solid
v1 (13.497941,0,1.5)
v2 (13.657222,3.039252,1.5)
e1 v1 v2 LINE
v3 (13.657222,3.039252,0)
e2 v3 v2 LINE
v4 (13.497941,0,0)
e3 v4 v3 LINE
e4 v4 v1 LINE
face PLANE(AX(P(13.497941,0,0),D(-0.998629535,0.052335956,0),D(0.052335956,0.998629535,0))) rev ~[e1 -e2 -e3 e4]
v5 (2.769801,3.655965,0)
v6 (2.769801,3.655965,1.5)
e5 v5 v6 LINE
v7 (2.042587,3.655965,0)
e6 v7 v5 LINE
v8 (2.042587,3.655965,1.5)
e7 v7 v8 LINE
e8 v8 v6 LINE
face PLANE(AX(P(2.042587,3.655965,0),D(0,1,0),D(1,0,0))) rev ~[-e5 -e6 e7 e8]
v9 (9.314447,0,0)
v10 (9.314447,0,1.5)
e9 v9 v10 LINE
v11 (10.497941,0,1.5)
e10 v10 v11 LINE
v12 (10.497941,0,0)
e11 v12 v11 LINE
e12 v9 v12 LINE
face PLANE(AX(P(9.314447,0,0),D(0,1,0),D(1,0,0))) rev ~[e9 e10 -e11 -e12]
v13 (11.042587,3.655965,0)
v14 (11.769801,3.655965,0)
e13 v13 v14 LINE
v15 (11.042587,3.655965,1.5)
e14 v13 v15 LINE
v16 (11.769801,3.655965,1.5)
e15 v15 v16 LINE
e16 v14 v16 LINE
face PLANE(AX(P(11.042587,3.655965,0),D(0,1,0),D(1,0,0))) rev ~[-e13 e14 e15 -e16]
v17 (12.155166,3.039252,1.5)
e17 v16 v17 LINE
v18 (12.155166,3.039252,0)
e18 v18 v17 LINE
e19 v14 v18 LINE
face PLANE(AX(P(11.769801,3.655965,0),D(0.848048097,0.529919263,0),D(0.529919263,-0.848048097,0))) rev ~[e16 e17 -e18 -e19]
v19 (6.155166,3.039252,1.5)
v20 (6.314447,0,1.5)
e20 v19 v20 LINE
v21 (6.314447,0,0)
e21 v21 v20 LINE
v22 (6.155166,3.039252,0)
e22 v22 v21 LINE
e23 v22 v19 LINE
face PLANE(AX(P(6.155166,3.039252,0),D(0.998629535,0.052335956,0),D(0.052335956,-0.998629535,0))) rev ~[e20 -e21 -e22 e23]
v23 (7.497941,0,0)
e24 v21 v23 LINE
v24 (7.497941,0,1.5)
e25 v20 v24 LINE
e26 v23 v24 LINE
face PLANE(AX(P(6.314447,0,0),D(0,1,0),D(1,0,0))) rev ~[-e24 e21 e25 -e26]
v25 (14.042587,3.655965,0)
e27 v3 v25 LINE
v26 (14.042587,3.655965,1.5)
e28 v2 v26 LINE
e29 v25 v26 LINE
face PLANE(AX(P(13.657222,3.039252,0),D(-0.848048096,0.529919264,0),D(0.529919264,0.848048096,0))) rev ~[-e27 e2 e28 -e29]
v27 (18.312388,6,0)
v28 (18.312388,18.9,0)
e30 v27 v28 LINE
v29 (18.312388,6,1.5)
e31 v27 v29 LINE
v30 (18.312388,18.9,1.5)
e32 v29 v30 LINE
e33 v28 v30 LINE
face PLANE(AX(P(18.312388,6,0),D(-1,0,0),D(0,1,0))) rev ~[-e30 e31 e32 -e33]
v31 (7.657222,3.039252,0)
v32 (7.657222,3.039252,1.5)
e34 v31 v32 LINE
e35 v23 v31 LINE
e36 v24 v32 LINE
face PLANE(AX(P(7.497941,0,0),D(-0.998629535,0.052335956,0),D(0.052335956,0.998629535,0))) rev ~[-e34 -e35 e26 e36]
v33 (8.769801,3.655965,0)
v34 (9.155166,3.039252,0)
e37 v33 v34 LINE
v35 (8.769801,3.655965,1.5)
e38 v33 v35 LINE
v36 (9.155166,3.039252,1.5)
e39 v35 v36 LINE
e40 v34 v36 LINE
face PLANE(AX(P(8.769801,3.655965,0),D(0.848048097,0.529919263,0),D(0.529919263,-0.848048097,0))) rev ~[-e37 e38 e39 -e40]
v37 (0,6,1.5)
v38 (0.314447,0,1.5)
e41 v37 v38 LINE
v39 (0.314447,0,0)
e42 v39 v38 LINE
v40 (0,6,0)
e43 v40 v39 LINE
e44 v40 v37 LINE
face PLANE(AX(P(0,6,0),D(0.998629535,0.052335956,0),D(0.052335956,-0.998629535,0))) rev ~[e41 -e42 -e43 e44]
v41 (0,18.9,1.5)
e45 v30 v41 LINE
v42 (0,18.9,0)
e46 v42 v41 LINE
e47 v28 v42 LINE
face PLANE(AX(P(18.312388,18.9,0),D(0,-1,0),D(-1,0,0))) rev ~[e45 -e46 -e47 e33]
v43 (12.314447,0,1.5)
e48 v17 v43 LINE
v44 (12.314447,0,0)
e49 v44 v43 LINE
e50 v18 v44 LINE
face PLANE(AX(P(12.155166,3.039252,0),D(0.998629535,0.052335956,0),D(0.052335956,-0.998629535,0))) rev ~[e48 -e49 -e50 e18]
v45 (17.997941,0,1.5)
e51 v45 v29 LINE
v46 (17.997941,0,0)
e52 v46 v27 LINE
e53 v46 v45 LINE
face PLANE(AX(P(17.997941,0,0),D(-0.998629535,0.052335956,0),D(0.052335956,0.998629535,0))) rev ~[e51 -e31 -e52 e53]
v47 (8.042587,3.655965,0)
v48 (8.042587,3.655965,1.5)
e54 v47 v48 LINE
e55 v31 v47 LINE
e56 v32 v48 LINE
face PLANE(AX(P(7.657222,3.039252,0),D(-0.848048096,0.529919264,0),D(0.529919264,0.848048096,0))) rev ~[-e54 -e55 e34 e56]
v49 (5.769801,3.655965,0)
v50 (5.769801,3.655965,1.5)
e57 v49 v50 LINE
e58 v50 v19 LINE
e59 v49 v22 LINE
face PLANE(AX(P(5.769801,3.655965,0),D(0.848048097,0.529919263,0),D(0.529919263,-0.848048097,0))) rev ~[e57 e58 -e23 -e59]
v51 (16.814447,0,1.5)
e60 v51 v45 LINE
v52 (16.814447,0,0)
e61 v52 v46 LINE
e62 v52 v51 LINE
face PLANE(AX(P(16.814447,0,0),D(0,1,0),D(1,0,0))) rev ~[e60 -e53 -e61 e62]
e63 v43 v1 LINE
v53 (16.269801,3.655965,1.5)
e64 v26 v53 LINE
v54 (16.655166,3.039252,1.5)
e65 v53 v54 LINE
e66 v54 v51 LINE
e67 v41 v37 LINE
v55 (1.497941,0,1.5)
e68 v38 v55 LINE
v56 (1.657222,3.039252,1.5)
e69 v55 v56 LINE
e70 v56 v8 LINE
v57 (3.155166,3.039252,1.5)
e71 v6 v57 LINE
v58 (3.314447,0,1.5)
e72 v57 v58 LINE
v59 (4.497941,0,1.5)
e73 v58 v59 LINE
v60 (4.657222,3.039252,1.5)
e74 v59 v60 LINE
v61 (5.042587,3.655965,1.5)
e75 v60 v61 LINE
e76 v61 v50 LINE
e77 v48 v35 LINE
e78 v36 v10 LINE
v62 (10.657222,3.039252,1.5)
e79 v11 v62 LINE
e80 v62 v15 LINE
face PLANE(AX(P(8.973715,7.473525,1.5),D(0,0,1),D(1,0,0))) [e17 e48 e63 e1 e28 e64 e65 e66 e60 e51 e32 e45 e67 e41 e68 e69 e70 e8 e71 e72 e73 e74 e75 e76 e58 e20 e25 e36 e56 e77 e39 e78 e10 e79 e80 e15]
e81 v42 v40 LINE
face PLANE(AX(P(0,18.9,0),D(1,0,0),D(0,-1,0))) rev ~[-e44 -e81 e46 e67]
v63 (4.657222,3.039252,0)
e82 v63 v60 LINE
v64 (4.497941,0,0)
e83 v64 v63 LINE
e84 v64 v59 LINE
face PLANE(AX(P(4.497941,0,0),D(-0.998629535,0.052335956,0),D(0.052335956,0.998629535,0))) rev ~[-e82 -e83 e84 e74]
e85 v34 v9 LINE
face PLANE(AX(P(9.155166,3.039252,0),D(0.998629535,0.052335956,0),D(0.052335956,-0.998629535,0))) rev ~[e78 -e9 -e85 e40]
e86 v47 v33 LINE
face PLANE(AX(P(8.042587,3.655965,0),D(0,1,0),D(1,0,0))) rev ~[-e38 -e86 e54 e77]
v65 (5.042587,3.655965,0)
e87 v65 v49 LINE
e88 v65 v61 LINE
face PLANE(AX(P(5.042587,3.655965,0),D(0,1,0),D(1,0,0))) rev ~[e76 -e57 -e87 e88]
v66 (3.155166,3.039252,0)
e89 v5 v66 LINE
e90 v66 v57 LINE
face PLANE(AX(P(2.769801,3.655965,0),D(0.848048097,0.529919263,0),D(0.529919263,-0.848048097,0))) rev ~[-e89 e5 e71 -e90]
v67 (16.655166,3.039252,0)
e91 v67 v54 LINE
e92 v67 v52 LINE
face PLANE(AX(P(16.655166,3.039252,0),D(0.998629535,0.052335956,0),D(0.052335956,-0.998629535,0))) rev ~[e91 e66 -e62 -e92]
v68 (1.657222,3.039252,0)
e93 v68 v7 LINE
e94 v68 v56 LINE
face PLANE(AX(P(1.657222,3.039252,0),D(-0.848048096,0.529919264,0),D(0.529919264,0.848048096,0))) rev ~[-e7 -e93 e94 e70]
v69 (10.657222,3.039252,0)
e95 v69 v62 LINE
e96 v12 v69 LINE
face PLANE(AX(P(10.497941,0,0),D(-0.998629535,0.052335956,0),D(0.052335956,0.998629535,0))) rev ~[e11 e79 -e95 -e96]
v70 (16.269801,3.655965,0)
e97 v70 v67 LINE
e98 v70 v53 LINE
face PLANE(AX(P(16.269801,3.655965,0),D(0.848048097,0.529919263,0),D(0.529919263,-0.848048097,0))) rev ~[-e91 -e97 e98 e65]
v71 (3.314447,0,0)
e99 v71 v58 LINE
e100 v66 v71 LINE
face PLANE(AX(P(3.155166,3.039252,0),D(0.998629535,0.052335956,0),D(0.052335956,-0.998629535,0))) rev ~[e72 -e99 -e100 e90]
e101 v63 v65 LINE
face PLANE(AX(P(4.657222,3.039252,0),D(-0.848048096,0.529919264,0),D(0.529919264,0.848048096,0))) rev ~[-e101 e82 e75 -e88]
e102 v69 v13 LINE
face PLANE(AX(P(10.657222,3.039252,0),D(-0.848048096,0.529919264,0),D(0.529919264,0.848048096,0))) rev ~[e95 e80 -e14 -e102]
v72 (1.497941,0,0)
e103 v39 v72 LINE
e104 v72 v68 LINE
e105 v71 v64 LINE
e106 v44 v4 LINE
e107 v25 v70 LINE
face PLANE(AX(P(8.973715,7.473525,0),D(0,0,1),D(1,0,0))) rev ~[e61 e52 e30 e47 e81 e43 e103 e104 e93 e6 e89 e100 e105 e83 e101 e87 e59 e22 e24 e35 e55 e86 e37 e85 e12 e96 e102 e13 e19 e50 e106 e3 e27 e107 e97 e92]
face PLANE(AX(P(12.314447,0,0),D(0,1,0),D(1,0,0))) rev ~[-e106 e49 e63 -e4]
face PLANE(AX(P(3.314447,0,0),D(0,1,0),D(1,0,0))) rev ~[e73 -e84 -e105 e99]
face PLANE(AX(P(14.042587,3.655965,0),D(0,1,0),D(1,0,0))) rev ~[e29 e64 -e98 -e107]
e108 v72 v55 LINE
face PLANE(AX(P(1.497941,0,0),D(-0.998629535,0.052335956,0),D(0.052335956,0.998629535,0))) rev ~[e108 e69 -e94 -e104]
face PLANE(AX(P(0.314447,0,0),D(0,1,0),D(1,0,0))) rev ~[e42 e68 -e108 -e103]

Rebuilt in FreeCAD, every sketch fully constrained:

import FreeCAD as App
import Part
import Sketcher
Q = App.Units.Quantity

doc = App.newDocument("Part")
body = doc.addObject("PartDesign::Body", "Body")

# Sketch on XY plane
sketch1 = doc.addObject("Sketcher::SketchObject", "Sketch")
body.addObject(sketch1)
sketch1.AttachmentSupport = (doc.XY_Plane, [""])
sketch1.MapMode = "FlatFace"
sketch1.addGeometry(Part.LineSegment(App.Vector(0, 6, 0), App.Vector(0.314447, 0, 0)), False)
sketch1.addGeometry(Part.LineSegment(App.Vector(0.314447, 0, 0), App.Vector(1.497941, 0, 0)), False)
sketch1.addGeometry(Part.LineSegment(App.Vector(1.497941, 0, 0), App.Vector(1.657222, 3.039252, 0)), False)
sketch1.addGeometry(Part.LineSegment(App.Vector(1.657222, 3.039252, 0), App.Vector(2.042587, 3.655965, 0)), False)
sketch1.addGeometry(Part.LineSegment(App.Vector(2.042587, 3.655965, 0), App.Vector(2.769801, 3.655965, 0)), False)
sketch1.addGeometry(Part.LineSegment(App.Vector(2.769801, 3.655965, 0), App.Vector(3.155166, 3.039252, 0)), False)
sketch1.addGeometry(Part.LineSegment(App.Vector(3.155166, 3.039252, 0), App.Vector(3.314447, 0, 0)), False)
sketch1.addGeometry(Part.LineSegment(App.Vector(3.314447, 0, 0), App.Vector(4.497941, 0, 0)), False)
sketch1.addGeometry(Part.LineSegment(App.Vector(4.497941, 0, 0), App.Vector(4.657222, 3.039252, 0)), False)
sketch1.addGeometry(Part.LineSegment(App.Vector(4.657222, 3.039252, 0), App.Vector(5.042587, 3.655965, 0)), False)
sketch1.addGeometry(Part.LineSegment(App.Vector(5.042587, 3.655965, 0), App.Vector(5.769801, 3.655965, 0)), False)
sketch1.addGeometry(Part.LineSegment(App.Vector(5.769801, 3.655965, 0), App.Vector(6.155166, 3.039252, 0)), False)
sketch1.addGeometry(Part.LineSegment(App.Vector(6.155166, 3.039252, 0), App.Vector(6.314447, 0, 0)), False)
sketch1.addGeometry(Part.LineSegment(App.Vector(6.314447, 0, 0), App.Vector(7.497941, 0, 0)), False)
sketch1.addGeometry(Part.LineSegment(App.Vector(7.497941, 0, 0), App.Vector(7.657222, 3.039252, 0)), False)
sketch1.addGeometry(Part.LineSegment(App.Vector(7.657222, 3.039252, 0), App.Vector(8.042587, 3.655965, 0)), False)
sketch1.addGeometry(Part.LineSegment(App.Vector(8.042587, 3.655965, 0), App.Vector(8.769801, 3.655965, 0)), False)
sketch1.addGeometry(Part.LineSegment(App.Vector(8.769801, 3.655965, 0), App.Vector(9.155166, 3.039252, 0)), False)
sketch1.addGeometry(Part.LineSegment(App.Vector(9.155166, 3.039252, 0), App.Vector(9.314447, 0, 0)), False)
sketch1.addGeometry(Part.LineSegment(App.Vector(9.314447, 0, 0), App.Vector(10.497941, 0, 0)), False)
sketch1.addGeometry(Part.LineSegment(App.Vector(10.497941, 0, 0), App.Vector(10.657222, 3.039252, 0)), False)
sketch1.addGeometry(Part.LineSegment(App.Vector(10.657222, 3.039252, 0), App.Vector(11.042587, 3.655965, 0)), False)
sketch1.addGeometry(Part.LineSegment(App.Vector(11.042587, 3.655965, 0), App.Vector(11.769801, 3.655965, 0)), False)
sketch1.addGeometry(Part.LineSegment(App.Vector(11.769801, 3.655965, 0), App.Vector(12.155166, 3.039252, 0)), False)
sketch1.addGeometry(Part.LineSegment(App.Vector(12.155166, 3.039252, 0), App.Vector(12.314447, 0, 0)), False)
sketch1.addGeometry(Part.LineSegment(App.Vector(12.314447, 0, 0), App.Vector(13.497941, 0, 0)), False)
sketch1.addGeometry(Part.LineSegment(App.Vector(13.497941, 0, 0), App.Vector(13.657222, 3.039252, 0)), False)
sketch1.addGeometry(Part.LineSegment(App.Vector(13.657222, 3.039252, 0), App.Vector(14.042587, 3.655965, 0)), False)
sketch1.addGeometry(Part.LineSegment(App.Vector(14.042587, 3.655965, 0), App.Vector(16.269801, 3.655965, 0)), False)
sketch1.addGeometry(Part.LineSegment(App.Vector(16.269801, 3.655965, 0), App.Vector(16.655166, 3.039252, 0)), False)
sketch1.addGeometry(Part.LineSegment(App.Vector(16.655166, 3.039252, 0), App.Vector(16.814447, 0, 0)), False)
sketch1.addGeometry(Part.LineSegment(App.Vector(16.814447, 0, 0), App.Vector(17.997941, 0, 0)), False)
sketch1.addGeometry(Part.LineSegment(App.Vector(17.997941, 0, 0), App.Vector(18.312388, 6, 0)), False)
sketch1.addGeometry(Part.LineSegment(App.Vector(18.312388, 6, 0), App.Vector(18.312388, 18.9, 0)), False)
sketch1.addGeometry(Part.LineSegment(App.Vector(18.312388, 18.9, 0), App.Vector(0, 18.9, 0)), False)
sketch1.addGeometry(Part.LineSegment(App.Vector(0, 18.9, 0), App.Vector(0, 6, 0)), False)
sketch1.addConstraint(Sketcher.Constraint("Coincident", 0, 2, 1, 1))
sketch1.addConstraint(Sketcher.Constraint("Coincident", 1, 2, 2, 1))
sketch1.addConstraint(Sketcher.Constraint("Coincident", 2, 2, 3, 1))
sketch1.addConstraint(Sketcher.Constraint("Coincident", 3, 2, 4, 1))
sketch1.addConstraint(Sketcher.Constraint("Coincident", 4, 2, 5, 1))
sketch1.addConstraint(Sketcher.Constraint("Coincident", 5, 2, 6, 1))
sketch1.addConstraint(Sketcher.Constraint("Coincident", 6, 2, 7, 1))
sketch1.addConstraint(Sketcher.Constraint("Coincident", 7, 2, 8, 1))
sketch1.addConstraint(Sketcher.Constraint("Coincident", 8, 2, 9, 1))
sketch1.addConstraint(Sketcher.Constraint("Coincident", 9, 2, 10, 1))
sketch1.addConstraint(Sketcher.Constraint("Coincident", 10, 2, 11, 1))
sketch1.addConstraint(Sketcher.Constraint("Coincident", 11, 2, 12, 1))
sketch1.addConstraint(Sketcher.Constraint("Coincident", 12, 2, 13, 1))
sketch1.addConstraint(Sketcher.Constraint("Coincident", 13, 2, 14, 1))
sketch1.addConstraint(Sketcher.Constraint("Coincident", 14, 2, 15, 1))
sketch1.addConstraint(Sketcher.Constraint("Coincident", 15, 2, 16, 1))
sketch1.addConstraint(Sketcher.Constraint("Coincident", 16, 2, 17, 1))
sketch1.addConstraint(Sketcher.Constraint("Coincident", 17, 2, 18, 1))
sketch1.addConstraint(Sketcher.Constraint("Coincident", 18, 2, 19, 1))
sketch1.addConstraint(Sketcher.Constraint("Coincident", 19, 2, 20, 1))
sketch1.addConstraint(Sketcher.Constraint("Coincident", 20, 2, 21, 1))
sketch1.addConstraint(Sketcher.Constraint("Coincident", 21, 2, 22, 1))
sketch1.addConstraint(Sketcher.Constraint("Coincident", 22, 2, 23, 1))
sketch1.addConstraint(Sketcher.Constraint("Coincident", 23, 2, 24, 1))
sketch1.addConstraint(Sketcher.Constraint("Coincident", 24, 2, 25, 1))
sketch1.addConstraint(Sketcher.Constraint("Coincident", 25, 2, 26, 1))
sketch1.addConstraint(Sketcher.Constraint("Coincident", 26, 2, 27, 1))
sketch1.addConstraint(Sketcher.Constraint("Coincident", 27, 2, 28, 1))
sketch1.addConstraint(Sketcher.Constraint("Coincident", 28, 2, 29, 1))
sketch1.addConstraint(Sketcher.Constraint("Coincident", 29, 2, 30, 1))
sketch1.addConstraint(Sketcher.Constraint("Coincident", 30, 2, 31, 1))
sketch1.addConstraint(Sketcher.Constraint("Coincident", 31, 2, 32, 1))
sketch1.addConstraint(Sketcher.Constraint("Coincident", 32, 2, 33, 1))
sketch1.addConstraint(Sketcher.Constraint("Coincident", 33, 2, 34, 1))
sketch1.addConstraint(Sketcher.Constraint("Coincident", 34, 2, 35, 1))
sketch1.addConstraint(Sketcher.Constraint("Coincident", 35, 2, 0, 1))
sketch1.addConstraint(Sketcher.Constraint("Horizontal", 1))
sketch1.addConstraint(Sketcher.Constraint("Horizontal", 4))
sketch1.addConstraint(Sketcher.Constraint("Horizontal", 7))
sketch1.addConstraint(Sketcher.Constraint("Horizontal", 10))
sketch1.addConstraint(Sketcher.Constraint("Horizontal", 13))
sketch1.addConstraint(Sketcher.Constraint("Horizontal", 16))
sketch1.addConstraint(Sketcher.Constraint("Horizontal", 19))
sketch1.addConstraint(Sketcher.Constraint("Horizontal", 22))
sketch1.addConstraint(Sketcher.Constraint("Horizontal", 25))
sketch1.addConstraint(Sketcher.Constraint("Horizontal", 28))
sketch1.addConstraint(Sketcher.Constraint("Horizontal", 31))
sketch1.addConstraint(Sketcher.Constraint("Vertical", 33))
sketch1.addConstraint(Sketcher.Constraint("Horizontal", 34))
sketch1.addConstraint(Sketcher.Constraint("Vertical", 35))
sketch1.addConstraint(Sketcher.Constraint("PointOnObject", 0, 2, -1))
sketch1.addConstraint(Sketcher.Constraint("PointOnObject", 6, 2, -1))
sketch1.addConstraint(Sketcher.Constraint("PointOnObject", 12, 2, -1))
sketch1.addConstraint(Sketcher.Constraint("PointOnObject", 18, 2, -1))
sketch1.addConstraint(Sketcher.Constraint("PointOnObject", 24, 2, -1))
sketch1.addConstraint(Sketcher.Constraint("PointOnObject", 30, 2, -1))
sketch1.addConstraint(Sketcher.Constraint("PointOnObject", 34, 2, -2))
sketch1.addConstraint(Sketcher.Constraint("Parallel", 0, 6))
sketch1.addConstraint(Sketcher.Constraint("Parallel", 2, 8))
sketch1.addConstraint(Sketcher.Constraint("Parallel", 3, 9))
sketch1.addConstraint(Sketcher.Constraint("Parallel", 5, 11))
sketch1.addConstraint(Sketcher.Constraint("Parallel", 6, 12))
sketch1.addConstraint(Sketcher.Constraint("Parallel", 8, 14))
sketch1.addConstraint(Sketcher.Constraint("Parallel", 9, 15))
sketch1.addConstraint(Sketcher.Constraint("Parallel", 11, 17))
sketch1.addConstraint(Sketcher.Constraint("Parallel", 12, 18))
sketch1.addConstraint(Sketcher.Constraint("Parallel", 14, 20))
sketch1.addConstraint(Sketcher.Constraint("Parallel", 15, 21))
sketch1.addConstraint(Sketcher.Constraint("Parallel", 17, 23))
sketch1.addConstraint(Sketcher.Constraint("Parallel", 18, 24))
sketch1.addConstraint(Sketcher.Constraint("Parallel", 20, 26))
sketch1.addConstraint(Sketcher.Constraint("Parallel", 21, 27))
sketch1.addConstraint(Sketcher.Constraint("Parallel", 23, 29))
sketch1.addConstraint(Sketcher.Constraint("Parallel", 24, 30))
sketch1.addConstraint(Sketcher.Constraint("Parallel", 26, 32))
sketch1.addConstraint(Sketcher.Constraint("Horizontal", 2, 2, 5, 2))
sketch1.addConstraint(Sketcher.Constraint("Horizontal", 5, 2, 8, 2))
sketch1.addConstraint(Sketcher.Constraint("Horizontal", 4, 2, 9, 2))
sketch1.addConstraint(Sketcher.Constraint("Horizontal", 8, 2, 11, 2))
sketch1.addConstraint(Sketcher.Constraint("Horizontal", 11, 2, 14, 2))
sketch1.addConstraint(Sketcher.Constraint("Horizontal", 10, 2, 15, 2))
sketch1.addConstraint(Sketcher.Constraint("Horizontal", 14, 2, 17, 2))
sketch1.addConstraint(Sketcher.Constraint("Horizontal", 17, 2, 20, 2))
sketch1.addConstraint(Sketcher.Constraint("Horizontal", 16, 2, 21, 2))
sketch1.addConstraint(Sketcher.Constraint("Horizontal", 20, 2, 23, 2))
sketch1.addConstraint(Sketcher.Constraint("Horizontal", 23, 2, 26, 2))
sketch1.addConstraint(Sketcher.Constraint("Horizontal", 22, 2, 27, 2))
sketch1.addConstraint(Sketcher.Constraint("Horizontal", 26, 2, 29, 2))
sketch1.addConstraint(Sketcher.Constraint("Horizontal", 32, 2, 35, 2))
sketch1.addConstraint(Sketcher.Constraint("Equal", 1, 7))
sketch1.addConstraint(Sketcher.Constraint("Equal", 4, 10))
sketch1.addConstraint(Sketcher.Constraint("Equal", 7, 13))
sketch1.addConstraint(Sketcher.Constraint("Equal", 10, 16))
sketch1.addConstraint(Sketcher.Constraint("Equal", 13, 19))
sketch1.addConstraint(Sketcher.Constraint("Equal", 16, 22))
sketch1.addConstraint(Sketcher.Constraint("Equal", 19, 25))
sketch1.addConstraint(Sketcher.Constraint("Equal", 25, 31))
sketch1.addConstraint(Sketcher.Constraint("Equal", 3, 5))
sketch1.addConstraint(Sketcher.Constraint("Equal", 2, 6))
sketch1.addConstraint(Sketcher.Constraint("Angle", 0, Q("-87 deg")))
sketch1.addConstraint(Sketcher.Constraint("Angle", 3, Q("58 deg")))
sketch1.addConstraint(Sketcher.Constraint("DistanceY", 33, 1, 33, 2, Q("12.9 mm")))
sketch1.addConstraint(Sketcher.Constraint("DistanceY", -1, 1, 32, 2, Q("6 mm")))
sketch1.addConstraint(Sketcher.Constraint("DistanceX", 0, 2, 6, 2, Q("3 mm")))
sketch1.addConstraint(Sketcher.Constraint("DistanceX", 22, 2, 28, 2, Q("4.5 mm")))
sketch1.addConstraint(Sketcher.Constraint("DistanceX", 34, 2, 34, 1, Q("18.312388 mm")))
sketch1.addConstraint(Sketcher.Constraint("DistanceX", -1, 1, 4, 2, Q("2.769801 mm")))
sketch1.addConstraint(Sketcher.Constraint("DistanceX", -1, 1, 2, 2, Q("1.657222 mm")))
pad1 = doc.addObject("PartDesign::Pad", "Pad")
body.addObject(pad1)
pad1.Profile = sketch1
pad1.Length = 1.5

doc.recompute()
